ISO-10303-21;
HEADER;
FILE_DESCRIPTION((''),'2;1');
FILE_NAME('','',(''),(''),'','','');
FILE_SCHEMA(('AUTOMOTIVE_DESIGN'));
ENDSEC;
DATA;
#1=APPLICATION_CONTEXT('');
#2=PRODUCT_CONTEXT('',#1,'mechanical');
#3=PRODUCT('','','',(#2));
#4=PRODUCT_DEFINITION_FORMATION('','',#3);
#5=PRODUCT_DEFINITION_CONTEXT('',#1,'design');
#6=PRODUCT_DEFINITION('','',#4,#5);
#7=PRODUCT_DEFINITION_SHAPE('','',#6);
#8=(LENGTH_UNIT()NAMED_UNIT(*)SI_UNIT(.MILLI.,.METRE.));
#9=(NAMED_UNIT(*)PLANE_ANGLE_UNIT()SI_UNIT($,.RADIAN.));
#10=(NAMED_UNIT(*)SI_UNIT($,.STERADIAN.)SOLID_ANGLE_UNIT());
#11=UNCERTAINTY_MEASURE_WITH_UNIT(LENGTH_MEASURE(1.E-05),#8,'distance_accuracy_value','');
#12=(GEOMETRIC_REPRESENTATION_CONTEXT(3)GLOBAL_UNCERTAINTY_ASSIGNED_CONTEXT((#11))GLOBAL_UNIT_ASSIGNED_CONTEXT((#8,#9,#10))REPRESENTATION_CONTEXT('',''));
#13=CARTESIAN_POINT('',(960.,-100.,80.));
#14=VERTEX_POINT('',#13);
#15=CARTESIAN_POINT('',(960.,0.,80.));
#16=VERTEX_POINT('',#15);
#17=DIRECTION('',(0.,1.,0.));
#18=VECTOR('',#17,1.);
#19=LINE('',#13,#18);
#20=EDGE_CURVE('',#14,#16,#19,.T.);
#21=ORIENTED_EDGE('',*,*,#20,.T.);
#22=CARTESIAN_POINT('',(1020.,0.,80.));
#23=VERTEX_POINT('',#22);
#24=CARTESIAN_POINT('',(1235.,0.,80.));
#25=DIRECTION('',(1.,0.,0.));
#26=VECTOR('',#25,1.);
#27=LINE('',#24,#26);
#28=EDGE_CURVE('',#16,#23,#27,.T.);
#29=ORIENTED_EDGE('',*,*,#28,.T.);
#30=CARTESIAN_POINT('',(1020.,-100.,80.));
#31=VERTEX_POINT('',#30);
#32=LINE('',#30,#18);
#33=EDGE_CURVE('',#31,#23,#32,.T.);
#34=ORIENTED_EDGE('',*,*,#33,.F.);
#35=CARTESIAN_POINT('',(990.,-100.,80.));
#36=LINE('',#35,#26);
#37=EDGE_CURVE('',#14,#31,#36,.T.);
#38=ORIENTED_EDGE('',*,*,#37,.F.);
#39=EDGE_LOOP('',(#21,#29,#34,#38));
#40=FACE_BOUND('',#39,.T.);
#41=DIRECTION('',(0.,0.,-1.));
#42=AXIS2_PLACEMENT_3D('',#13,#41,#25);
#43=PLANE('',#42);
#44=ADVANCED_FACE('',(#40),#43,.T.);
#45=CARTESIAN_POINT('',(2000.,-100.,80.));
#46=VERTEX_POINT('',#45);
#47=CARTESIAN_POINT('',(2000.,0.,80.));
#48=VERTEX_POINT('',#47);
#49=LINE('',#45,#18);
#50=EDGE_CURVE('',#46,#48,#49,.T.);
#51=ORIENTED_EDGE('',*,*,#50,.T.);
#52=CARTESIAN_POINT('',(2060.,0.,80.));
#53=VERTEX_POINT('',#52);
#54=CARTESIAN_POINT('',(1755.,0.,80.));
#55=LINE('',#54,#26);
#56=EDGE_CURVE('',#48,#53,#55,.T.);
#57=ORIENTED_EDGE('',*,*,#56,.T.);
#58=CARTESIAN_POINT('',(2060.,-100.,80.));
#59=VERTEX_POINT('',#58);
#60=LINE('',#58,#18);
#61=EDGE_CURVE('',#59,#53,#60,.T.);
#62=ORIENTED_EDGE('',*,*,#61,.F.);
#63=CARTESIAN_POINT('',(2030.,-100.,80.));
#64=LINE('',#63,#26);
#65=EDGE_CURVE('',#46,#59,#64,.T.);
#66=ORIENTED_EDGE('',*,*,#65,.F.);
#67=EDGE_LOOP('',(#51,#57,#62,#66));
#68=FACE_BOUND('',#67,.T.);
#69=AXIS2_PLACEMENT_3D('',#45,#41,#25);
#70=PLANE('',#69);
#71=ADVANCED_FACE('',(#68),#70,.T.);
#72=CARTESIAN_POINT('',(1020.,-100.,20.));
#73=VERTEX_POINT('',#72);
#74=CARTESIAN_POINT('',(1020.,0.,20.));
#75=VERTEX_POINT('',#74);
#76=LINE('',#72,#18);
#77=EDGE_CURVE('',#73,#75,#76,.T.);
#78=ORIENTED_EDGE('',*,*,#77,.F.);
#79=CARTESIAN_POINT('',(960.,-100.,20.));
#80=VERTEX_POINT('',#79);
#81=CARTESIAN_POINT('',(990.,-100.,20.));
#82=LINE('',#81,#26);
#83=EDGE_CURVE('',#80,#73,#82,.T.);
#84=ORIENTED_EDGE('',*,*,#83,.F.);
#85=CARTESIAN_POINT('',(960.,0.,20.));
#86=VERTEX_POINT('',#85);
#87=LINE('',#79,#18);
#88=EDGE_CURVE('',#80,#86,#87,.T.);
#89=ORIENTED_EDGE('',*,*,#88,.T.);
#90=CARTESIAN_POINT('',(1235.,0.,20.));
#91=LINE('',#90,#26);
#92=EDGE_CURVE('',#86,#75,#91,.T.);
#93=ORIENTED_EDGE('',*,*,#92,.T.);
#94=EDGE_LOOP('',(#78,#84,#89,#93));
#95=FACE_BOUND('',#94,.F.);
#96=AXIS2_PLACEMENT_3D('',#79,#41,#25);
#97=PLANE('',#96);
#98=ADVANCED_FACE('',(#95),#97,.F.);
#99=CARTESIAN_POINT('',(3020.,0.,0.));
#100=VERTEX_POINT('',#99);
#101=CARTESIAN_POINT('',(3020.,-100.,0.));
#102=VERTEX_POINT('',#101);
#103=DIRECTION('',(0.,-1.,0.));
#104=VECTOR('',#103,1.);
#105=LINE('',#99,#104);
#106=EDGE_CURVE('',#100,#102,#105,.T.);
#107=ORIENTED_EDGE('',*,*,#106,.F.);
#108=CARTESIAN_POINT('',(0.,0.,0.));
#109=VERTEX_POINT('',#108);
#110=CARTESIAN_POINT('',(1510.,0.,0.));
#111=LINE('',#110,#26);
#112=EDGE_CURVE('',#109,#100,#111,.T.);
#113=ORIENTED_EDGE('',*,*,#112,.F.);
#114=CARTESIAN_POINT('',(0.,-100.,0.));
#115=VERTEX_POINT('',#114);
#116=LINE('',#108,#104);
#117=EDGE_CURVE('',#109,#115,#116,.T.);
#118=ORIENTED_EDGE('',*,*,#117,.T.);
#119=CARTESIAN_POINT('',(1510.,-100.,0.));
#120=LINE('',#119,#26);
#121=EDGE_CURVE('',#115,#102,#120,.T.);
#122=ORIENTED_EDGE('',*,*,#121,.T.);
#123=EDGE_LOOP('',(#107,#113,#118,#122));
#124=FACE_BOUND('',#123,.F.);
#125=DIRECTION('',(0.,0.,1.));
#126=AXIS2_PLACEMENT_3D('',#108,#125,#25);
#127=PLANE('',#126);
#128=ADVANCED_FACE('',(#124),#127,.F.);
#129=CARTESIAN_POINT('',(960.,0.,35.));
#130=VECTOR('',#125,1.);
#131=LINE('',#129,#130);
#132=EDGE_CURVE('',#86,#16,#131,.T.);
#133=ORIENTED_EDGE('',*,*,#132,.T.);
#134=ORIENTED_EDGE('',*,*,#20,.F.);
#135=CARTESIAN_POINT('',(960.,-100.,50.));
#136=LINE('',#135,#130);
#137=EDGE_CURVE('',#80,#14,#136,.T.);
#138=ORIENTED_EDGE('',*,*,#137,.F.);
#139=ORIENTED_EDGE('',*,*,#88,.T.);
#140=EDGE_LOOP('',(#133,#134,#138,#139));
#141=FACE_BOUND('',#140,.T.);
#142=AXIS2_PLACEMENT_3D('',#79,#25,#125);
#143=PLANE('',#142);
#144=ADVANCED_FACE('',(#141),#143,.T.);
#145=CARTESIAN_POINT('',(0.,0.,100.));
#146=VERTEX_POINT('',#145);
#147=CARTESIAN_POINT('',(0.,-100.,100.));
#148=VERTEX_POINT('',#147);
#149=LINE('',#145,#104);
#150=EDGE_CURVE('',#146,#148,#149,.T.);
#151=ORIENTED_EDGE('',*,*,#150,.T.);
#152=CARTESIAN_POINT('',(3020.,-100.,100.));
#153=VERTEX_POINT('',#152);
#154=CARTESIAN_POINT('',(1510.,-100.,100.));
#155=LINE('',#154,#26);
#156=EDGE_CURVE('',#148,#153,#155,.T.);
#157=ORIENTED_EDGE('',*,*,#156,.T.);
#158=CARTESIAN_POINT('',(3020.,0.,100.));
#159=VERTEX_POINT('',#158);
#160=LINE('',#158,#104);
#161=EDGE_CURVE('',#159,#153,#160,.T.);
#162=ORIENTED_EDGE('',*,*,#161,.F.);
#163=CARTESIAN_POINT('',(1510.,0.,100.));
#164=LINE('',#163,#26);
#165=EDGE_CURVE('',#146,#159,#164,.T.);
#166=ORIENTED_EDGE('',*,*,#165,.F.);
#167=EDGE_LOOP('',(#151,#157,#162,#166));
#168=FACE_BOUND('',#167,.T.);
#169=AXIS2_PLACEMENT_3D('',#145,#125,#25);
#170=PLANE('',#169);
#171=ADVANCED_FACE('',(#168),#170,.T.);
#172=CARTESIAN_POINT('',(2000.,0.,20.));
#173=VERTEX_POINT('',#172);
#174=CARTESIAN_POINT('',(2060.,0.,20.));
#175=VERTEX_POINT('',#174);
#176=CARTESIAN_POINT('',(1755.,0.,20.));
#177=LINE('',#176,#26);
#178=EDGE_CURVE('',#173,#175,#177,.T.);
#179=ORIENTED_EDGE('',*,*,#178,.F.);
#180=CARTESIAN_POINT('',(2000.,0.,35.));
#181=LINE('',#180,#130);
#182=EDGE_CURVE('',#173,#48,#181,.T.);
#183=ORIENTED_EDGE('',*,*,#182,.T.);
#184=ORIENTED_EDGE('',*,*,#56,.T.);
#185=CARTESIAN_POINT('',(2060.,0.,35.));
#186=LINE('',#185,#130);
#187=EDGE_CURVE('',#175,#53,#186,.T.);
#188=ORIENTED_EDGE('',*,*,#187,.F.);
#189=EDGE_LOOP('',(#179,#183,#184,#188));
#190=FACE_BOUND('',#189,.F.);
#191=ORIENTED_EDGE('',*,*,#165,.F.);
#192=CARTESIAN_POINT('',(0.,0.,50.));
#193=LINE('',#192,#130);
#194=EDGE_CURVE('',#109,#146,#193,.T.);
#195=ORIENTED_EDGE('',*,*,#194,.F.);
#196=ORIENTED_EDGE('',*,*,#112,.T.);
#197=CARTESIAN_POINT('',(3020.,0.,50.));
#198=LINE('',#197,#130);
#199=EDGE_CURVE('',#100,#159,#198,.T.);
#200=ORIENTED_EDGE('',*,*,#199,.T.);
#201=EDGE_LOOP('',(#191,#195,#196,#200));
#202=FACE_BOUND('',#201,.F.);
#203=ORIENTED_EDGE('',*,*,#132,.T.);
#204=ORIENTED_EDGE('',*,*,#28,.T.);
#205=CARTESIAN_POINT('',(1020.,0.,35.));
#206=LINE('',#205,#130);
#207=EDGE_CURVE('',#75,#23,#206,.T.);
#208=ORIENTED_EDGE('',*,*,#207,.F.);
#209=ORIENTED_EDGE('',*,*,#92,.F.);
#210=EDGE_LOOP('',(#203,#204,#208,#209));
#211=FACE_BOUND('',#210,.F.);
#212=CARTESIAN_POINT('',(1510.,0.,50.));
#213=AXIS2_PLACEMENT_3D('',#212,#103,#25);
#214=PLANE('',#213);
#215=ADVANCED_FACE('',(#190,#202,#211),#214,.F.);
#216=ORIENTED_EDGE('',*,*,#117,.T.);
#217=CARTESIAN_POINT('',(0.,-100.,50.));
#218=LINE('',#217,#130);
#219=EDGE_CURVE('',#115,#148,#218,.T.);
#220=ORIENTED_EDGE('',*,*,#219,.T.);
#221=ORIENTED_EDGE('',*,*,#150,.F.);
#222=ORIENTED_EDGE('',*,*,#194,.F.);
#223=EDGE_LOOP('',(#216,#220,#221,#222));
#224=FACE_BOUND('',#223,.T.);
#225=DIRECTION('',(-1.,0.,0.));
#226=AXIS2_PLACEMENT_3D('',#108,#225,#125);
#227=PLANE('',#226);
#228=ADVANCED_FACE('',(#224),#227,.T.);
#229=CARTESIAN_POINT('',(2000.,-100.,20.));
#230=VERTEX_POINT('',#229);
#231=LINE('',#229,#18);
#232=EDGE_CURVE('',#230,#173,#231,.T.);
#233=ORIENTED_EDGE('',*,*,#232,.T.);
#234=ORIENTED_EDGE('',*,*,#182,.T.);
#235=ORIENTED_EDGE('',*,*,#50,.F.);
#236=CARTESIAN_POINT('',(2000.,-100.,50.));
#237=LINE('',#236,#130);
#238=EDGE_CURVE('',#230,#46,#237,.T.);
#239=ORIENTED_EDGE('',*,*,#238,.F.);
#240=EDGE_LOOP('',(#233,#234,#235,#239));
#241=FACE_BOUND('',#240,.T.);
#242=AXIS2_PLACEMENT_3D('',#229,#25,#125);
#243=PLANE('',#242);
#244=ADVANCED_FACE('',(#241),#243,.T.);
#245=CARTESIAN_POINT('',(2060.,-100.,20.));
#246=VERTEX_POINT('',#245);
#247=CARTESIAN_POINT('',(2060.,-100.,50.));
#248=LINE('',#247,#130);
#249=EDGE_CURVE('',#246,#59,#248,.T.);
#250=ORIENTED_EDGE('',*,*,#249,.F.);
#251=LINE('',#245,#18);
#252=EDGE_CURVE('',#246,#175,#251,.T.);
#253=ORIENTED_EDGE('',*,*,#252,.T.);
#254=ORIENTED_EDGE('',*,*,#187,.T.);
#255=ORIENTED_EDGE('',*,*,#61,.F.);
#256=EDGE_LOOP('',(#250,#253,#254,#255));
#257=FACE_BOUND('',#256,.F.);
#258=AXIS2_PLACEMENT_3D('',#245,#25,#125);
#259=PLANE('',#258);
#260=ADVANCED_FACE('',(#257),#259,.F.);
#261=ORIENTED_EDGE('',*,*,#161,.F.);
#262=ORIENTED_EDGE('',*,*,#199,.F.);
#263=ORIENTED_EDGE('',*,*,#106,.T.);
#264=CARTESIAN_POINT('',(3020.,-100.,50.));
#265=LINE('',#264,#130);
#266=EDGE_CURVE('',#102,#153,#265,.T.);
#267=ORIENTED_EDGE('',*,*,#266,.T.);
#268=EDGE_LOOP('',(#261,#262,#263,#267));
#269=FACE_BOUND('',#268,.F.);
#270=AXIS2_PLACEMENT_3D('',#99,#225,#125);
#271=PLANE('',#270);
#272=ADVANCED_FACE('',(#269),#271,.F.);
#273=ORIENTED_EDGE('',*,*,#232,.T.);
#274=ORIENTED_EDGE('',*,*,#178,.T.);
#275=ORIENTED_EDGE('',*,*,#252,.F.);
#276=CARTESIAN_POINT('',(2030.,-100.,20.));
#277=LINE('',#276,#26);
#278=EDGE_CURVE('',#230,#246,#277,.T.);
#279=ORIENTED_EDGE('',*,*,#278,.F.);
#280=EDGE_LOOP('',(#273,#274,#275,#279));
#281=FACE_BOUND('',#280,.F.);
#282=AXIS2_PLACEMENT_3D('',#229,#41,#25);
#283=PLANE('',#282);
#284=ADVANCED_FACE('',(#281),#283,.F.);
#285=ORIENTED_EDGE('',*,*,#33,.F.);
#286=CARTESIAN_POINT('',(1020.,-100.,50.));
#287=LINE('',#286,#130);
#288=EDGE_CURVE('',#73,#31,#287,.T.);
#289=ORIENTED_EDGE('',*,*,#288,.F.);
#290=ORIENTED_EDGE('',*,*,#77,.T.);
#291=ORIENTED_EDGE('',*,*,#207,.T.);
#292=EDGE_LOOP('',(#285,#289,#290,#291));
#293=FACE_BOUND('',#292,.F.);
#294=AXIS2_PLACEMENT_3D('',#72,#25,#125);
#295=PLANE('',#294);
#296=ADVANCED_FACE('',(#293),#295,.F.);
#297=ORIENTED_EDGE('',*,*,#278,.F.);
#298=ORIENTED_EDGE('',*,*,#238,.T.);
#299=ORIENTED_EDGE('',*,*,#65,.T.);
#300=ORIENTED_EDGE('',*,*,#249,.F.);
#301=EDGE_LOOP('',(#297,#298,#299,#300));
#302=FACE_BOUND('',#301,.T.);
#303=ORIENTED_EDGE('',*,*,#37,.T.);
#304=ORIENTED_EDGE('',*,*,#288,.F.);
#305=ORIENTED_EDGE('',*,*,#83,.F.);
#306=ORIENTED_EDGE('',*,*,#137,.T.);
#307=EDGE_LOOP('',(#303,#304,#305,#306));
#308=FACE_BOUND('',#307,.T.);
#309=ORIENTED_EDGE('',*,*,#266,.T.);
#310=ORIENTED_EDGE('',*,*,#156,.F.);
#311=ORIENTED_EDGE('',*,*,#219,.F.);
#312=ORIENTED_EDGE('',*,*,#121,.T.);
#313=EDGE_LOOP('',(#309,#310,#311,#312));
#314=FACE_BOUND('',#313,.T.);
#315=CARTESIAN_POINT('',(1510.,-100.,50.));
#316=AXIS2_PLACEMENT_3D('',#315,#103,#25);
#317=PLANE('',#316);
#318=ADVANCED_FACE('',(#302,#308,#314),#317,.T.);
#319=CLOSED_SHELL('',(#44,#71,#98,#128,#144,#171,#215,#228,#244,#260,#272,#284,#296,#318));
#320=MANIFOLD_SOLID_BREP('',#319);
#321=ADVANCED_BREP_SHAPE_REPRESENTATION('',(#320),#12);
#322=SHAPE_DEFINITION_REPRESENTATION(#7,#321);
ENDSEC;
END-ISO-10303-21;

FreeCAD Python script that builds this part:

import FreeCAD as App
import Part
import Sketcher


def add_polygon(sketch, points):
    """Adds a closed chain of lines whose ends are joined by coincident constraints."""
    first, n = sketch.GeometryCount, len(points)
    for a, b in zip(points, points[1:] + points[:1]):
        sketch.addGeometry(Part.LineSegment(App.Vector(*a, 0), App.Vector(*b, 0)), False)
    for i in range(n):
        sketch.addConstraint(Sketcher.Constraint("Coincident", first + i, 2, first + (i + 1) % n, 1))

doc = App.newDocument("Part")
body = doc.addObject("PartDesign::Body", "Body")

# Sketch on XZ plane
sketch1 = doc.addObject("Sketcher::SketchObject", "Sketch")
body.addObject(sketch1)
sketch1.AttachmentSupport = (doc.XZ_Plane, [""])
sketch1.MapMode = "FlatFace"
add_polygon(sketch1, [(0, 100), (0, 0), (3020, 0), (3020, 100)])  # lines 0-3
sketch1.addConstraint(Sketcher.Constraint("Vertical", 0))
sketch1.addConstraint(Sketcher.Constraint("Horizontal", 1))
sketch1.addConstraint(Sketcher.Constraint("Vertical", 2))
sketch1.addConstraint(Sketcher.Constraint("Horizontal", 3))
sketch1.addConstraint(Sketcher.Constraint("Coincident", 0, 2, -1, 1))
sketch1.addConstraint(Sketcher.Constraint("DistanceX", 1, 1, 1, 2, 3020.0))
sketch1.addConstraint(Sketcher.Constraint("DistanceY", 0, 2, 0, 1, 100.0))
pad1 = doc.addObject("PartDesign::Pad", "Pad")
body.addObject(pad1)
pad1.Profile = sketch1
pad1.Length = 100

# Sketch on XZ plane
sketch2 = doc.addObject("Sketcher::SketchObject", "Sketch001")
body.addObject(sketch2)
sketch2.AttachmentSupport = (doc.XZ_Plane, [""])
sketch2.MapMode = "FlatFace"
sketch2.AttachmentOffset = App.Placement(App.Vector(0, 0, 100), App.Rotation())
add_polygon(sketch2, [(960, 80), (960, 20), (1020, 20), (1020, 80)])  # lines 0-3
add_polygon(sketch2, [(2000, 80), (2000, 20), (2060, 20), (2060, 80)])  # lines 4-7
sketch2.addConstraint(Sketcher.Constraint("Vertical", 0))
sketch2.addConstraint(Sketcher.Constraint("Horizontal", 1))
sketch2.addConstraint(Sketcher.Constraint("Vertical", 2))
sketch2.addConstraint(Sketcher.Constraint("Horizontal", 3))
sketch2.addConstraint(Sketcher.Constraint("Vertical", 4))
sketch2.addConstraint(Sketcher.Constraint("Horizontal", 5))
sketch2.addConstraint(Sketcher.Constraint("Vertical", 6))
sketch2.addConstraint(Sketcher.Constraint("Horizontal", 7))
sketch2.addConstraint(Sketcher.Constraint("Horizontal", 1, 2, 4, 2))
sketch2.addConstraint(Sketcher.Constraint("Horizontal", 3, 2, 6, 2))
sketch2.addConstraint(Sketcher.Constraint("Equal", 3, 5))
sketch2.addConstraint(Sketcher.Constraint("Equal", 7, 0))
sketch2.addConstraint(Sketcher.Constraint("DistanceX", 1, 1, 1, 2, 60.0))
sketch2.addConstraint(Sketcher.Constraint("DistanceX", -1, 1, 0, 2, 960.0))
sketch2.addConstraint(Sketcher.Constraint("DistanceY", -1, 1, 0, 2, 20.0))
sketch2.addConstraint(Sketcher.Constraint("DistanceX", -1, 1, 4, 2, 2000.0))
pocket1 = doc.addObject("PartDesign::Pocket", "Pocket")
body.addObject(pocket1)
pocket1.Profile = sketch2
pocket1.Type = "ThroughAll"

doc.recompute()
